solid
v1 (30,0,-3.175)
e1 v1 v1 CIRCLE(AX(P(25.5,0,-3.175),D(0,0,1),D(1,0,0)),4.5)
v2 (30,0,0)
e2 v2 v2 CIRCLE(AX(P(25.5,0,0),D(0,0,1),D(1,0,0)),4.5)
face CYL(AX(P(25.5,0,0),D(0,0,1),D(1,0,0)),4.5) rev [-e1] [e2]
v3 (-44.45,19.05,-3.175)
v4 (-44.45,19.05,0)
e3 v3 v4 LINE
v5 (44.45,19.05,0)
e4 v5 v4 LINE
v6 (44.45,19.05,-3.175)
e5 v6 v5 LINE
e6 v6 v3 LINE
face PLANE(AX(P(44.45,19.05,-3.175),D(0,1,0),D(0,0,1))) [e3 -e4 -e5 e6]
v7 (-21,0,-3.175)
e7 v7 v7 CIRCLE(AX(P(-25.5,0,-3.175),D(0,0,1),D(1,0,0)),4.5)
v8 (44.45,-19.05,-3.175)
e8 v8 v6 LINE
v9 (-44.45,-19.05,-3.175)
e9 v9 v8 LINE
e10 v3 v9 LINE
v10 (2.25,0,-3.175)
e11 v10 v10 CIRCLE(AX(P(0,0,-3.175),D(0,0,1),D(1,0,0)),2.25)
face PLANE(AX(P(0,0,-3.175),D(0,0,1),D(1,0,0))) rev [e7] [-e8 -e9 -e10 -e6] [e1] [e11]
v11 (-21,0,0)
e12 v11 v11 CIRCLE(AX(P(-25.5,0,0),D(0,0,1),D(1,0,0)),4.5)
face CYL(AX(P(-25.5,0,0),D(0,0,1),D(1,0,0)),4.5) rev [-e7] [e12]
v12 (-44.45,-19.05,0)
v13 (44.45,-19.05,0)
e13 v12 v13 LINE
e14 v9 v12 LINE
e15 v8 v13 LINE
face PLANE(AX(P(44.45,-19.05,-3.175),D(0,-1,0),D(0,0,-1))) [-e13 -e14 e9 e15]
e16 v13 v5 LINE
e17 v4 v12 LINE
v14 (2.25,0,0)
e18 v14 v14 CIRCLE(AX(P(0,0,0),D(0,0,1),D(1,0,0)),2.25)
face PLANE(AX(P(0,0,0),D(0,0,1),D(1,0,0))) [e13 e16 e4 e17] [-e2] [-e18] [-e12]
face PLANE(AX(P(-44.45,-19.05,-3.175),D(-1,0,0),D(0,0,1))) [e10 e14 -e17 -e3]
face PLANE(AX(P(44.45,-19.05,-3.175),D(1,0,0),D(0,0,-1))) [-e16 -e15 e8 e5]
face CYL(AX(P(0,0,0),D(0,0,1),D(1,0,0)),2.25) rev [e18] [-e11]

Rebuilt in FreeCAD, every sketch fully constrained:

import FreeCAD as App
import Part
import Sketcher
Q = App.Units.Quantity

doc = App.newDocument("Part")
body = doc.addObject("PartDesign::Body", "Body")

sketch1 = body.newObject("Sketcher::SketchObject", "Sketch")
sketch1.AttachmentSupport = (doc.getObject("XY_Plane"), [""])
sketch1.MapMode = "FlatFace"
sketch1.addGeometry([
    Part.LineSegment(App.Vector(-44, 19, 0), App.Vector(-44, -19, 0)),
    Part.LineSegment(App.Vector(-44, -19, 0), App.Vector(44, -19, 0)),
    Part.LineSegment(App.Vector(44, -19, 0), App.Vector(44, 19, 0)),
    Part.LineSegment(App.Vector(44, 19, 0), App.Vector(-44, 19, 0)),
], False)
sketch1.addConstraint([
    Sketcher.Constraint("Coincident", 0, 2, 1, 1),
    Sketcher.Constraint("Coincident", 1, 2, 2, 1),
    Sketcher.Constraint("Coincident", 2, 2, 3, 1),
    Sketcher.Constraint("Coincident", 3, 2, 0, 1),
    Sketcher.Constraint("Vertical", 0),
    Sketcher.Constraint("Horizontal", 1),
    Sketcher.Constraint("Vertical", 2),
    Sketcher.Constraint("Horizontal", 3),
    Sketcher.Constraint("Symmetric", 0, 2, 2, 2, -1, 1),
    Sketcher.Constraint("DistanceX", 1, 1, 1, 2, Q("3.5 in")),
    Sketcher.Constraint("DistanceY", 0, 2, 0, 1, Q("1.5 in")),
])
pad1 = body.newObject("PartDesign::Pad", "Pad")
pad1.Profile = sketch1
pad1.Length = Q("0.125 in")
pad1.Reversed = True

sketch2 = body.newObject("Sketcher::SketchObject", "Sketch001")
sketch2.AttachmentSupport = (doc.getObject("XY_Plane"), [""])
sketch2.MapMode = "FlatFace"
sketch2.addGeometry(Part.Circle(App.Vector(0, 0, 0), App.Vector(0, 0, 1), 2.2), False)
sketch2.addConstraint([
    Sketcher.Constraint("Coincident", 0, 3, -1, 1),
    Sketcher.Constraint("Diameter", 0, Q("4.5 mm")),
])
doc.recompute()
hole = body.newObject("PartDesign::Hole", "Hole")
hole.Profile = sketch2
hole.ThreadType = "None"
hole.Diameter = 4.5
hole.DepthType = "ThroughAll"

sketch3 = body.newObject("Sketcher::SketchObject", "Sketch002")
sketch3.AttachmentSupport = (doc.getObject("XY_Plane"), [""])
sketch3.MapMode = "FlatFace"
sketch3.addGeometry([
    Part.Circle(App.Vector(-25.5, 0, 0), App.Vector(0, 0, 1), 4.5),
    Part.Circle(App.Vector(25.5, 0, 0), App.Vector(0, 0, 1), 4.5),
], False)
sketch3.addConstraint([
    Sketcher.Constraint("Equal", 0, 1),
    Sketcher.Constraint("Symmetric", 0, 3, 1, 3, -1, 1),
    Sketcher.Constraint("PointOnObject", 0, 3, -1),
    Sketcher.Constraint("Diameter", 0, Q("9 mm")),
    Sketcher.Constraint("DistanceX", 0, 3, -1, 1, Q("25.5 mm")),
])
doc.recompute()
hole2 = body.newObject("PartDesign::Hole", "Hole001")
hole2.Profile = sketch3
hole2.ThreadType = "None"
hole2.Diameter = 9
hole2.DepthType = "ThroughAll"

doc.recompute()
